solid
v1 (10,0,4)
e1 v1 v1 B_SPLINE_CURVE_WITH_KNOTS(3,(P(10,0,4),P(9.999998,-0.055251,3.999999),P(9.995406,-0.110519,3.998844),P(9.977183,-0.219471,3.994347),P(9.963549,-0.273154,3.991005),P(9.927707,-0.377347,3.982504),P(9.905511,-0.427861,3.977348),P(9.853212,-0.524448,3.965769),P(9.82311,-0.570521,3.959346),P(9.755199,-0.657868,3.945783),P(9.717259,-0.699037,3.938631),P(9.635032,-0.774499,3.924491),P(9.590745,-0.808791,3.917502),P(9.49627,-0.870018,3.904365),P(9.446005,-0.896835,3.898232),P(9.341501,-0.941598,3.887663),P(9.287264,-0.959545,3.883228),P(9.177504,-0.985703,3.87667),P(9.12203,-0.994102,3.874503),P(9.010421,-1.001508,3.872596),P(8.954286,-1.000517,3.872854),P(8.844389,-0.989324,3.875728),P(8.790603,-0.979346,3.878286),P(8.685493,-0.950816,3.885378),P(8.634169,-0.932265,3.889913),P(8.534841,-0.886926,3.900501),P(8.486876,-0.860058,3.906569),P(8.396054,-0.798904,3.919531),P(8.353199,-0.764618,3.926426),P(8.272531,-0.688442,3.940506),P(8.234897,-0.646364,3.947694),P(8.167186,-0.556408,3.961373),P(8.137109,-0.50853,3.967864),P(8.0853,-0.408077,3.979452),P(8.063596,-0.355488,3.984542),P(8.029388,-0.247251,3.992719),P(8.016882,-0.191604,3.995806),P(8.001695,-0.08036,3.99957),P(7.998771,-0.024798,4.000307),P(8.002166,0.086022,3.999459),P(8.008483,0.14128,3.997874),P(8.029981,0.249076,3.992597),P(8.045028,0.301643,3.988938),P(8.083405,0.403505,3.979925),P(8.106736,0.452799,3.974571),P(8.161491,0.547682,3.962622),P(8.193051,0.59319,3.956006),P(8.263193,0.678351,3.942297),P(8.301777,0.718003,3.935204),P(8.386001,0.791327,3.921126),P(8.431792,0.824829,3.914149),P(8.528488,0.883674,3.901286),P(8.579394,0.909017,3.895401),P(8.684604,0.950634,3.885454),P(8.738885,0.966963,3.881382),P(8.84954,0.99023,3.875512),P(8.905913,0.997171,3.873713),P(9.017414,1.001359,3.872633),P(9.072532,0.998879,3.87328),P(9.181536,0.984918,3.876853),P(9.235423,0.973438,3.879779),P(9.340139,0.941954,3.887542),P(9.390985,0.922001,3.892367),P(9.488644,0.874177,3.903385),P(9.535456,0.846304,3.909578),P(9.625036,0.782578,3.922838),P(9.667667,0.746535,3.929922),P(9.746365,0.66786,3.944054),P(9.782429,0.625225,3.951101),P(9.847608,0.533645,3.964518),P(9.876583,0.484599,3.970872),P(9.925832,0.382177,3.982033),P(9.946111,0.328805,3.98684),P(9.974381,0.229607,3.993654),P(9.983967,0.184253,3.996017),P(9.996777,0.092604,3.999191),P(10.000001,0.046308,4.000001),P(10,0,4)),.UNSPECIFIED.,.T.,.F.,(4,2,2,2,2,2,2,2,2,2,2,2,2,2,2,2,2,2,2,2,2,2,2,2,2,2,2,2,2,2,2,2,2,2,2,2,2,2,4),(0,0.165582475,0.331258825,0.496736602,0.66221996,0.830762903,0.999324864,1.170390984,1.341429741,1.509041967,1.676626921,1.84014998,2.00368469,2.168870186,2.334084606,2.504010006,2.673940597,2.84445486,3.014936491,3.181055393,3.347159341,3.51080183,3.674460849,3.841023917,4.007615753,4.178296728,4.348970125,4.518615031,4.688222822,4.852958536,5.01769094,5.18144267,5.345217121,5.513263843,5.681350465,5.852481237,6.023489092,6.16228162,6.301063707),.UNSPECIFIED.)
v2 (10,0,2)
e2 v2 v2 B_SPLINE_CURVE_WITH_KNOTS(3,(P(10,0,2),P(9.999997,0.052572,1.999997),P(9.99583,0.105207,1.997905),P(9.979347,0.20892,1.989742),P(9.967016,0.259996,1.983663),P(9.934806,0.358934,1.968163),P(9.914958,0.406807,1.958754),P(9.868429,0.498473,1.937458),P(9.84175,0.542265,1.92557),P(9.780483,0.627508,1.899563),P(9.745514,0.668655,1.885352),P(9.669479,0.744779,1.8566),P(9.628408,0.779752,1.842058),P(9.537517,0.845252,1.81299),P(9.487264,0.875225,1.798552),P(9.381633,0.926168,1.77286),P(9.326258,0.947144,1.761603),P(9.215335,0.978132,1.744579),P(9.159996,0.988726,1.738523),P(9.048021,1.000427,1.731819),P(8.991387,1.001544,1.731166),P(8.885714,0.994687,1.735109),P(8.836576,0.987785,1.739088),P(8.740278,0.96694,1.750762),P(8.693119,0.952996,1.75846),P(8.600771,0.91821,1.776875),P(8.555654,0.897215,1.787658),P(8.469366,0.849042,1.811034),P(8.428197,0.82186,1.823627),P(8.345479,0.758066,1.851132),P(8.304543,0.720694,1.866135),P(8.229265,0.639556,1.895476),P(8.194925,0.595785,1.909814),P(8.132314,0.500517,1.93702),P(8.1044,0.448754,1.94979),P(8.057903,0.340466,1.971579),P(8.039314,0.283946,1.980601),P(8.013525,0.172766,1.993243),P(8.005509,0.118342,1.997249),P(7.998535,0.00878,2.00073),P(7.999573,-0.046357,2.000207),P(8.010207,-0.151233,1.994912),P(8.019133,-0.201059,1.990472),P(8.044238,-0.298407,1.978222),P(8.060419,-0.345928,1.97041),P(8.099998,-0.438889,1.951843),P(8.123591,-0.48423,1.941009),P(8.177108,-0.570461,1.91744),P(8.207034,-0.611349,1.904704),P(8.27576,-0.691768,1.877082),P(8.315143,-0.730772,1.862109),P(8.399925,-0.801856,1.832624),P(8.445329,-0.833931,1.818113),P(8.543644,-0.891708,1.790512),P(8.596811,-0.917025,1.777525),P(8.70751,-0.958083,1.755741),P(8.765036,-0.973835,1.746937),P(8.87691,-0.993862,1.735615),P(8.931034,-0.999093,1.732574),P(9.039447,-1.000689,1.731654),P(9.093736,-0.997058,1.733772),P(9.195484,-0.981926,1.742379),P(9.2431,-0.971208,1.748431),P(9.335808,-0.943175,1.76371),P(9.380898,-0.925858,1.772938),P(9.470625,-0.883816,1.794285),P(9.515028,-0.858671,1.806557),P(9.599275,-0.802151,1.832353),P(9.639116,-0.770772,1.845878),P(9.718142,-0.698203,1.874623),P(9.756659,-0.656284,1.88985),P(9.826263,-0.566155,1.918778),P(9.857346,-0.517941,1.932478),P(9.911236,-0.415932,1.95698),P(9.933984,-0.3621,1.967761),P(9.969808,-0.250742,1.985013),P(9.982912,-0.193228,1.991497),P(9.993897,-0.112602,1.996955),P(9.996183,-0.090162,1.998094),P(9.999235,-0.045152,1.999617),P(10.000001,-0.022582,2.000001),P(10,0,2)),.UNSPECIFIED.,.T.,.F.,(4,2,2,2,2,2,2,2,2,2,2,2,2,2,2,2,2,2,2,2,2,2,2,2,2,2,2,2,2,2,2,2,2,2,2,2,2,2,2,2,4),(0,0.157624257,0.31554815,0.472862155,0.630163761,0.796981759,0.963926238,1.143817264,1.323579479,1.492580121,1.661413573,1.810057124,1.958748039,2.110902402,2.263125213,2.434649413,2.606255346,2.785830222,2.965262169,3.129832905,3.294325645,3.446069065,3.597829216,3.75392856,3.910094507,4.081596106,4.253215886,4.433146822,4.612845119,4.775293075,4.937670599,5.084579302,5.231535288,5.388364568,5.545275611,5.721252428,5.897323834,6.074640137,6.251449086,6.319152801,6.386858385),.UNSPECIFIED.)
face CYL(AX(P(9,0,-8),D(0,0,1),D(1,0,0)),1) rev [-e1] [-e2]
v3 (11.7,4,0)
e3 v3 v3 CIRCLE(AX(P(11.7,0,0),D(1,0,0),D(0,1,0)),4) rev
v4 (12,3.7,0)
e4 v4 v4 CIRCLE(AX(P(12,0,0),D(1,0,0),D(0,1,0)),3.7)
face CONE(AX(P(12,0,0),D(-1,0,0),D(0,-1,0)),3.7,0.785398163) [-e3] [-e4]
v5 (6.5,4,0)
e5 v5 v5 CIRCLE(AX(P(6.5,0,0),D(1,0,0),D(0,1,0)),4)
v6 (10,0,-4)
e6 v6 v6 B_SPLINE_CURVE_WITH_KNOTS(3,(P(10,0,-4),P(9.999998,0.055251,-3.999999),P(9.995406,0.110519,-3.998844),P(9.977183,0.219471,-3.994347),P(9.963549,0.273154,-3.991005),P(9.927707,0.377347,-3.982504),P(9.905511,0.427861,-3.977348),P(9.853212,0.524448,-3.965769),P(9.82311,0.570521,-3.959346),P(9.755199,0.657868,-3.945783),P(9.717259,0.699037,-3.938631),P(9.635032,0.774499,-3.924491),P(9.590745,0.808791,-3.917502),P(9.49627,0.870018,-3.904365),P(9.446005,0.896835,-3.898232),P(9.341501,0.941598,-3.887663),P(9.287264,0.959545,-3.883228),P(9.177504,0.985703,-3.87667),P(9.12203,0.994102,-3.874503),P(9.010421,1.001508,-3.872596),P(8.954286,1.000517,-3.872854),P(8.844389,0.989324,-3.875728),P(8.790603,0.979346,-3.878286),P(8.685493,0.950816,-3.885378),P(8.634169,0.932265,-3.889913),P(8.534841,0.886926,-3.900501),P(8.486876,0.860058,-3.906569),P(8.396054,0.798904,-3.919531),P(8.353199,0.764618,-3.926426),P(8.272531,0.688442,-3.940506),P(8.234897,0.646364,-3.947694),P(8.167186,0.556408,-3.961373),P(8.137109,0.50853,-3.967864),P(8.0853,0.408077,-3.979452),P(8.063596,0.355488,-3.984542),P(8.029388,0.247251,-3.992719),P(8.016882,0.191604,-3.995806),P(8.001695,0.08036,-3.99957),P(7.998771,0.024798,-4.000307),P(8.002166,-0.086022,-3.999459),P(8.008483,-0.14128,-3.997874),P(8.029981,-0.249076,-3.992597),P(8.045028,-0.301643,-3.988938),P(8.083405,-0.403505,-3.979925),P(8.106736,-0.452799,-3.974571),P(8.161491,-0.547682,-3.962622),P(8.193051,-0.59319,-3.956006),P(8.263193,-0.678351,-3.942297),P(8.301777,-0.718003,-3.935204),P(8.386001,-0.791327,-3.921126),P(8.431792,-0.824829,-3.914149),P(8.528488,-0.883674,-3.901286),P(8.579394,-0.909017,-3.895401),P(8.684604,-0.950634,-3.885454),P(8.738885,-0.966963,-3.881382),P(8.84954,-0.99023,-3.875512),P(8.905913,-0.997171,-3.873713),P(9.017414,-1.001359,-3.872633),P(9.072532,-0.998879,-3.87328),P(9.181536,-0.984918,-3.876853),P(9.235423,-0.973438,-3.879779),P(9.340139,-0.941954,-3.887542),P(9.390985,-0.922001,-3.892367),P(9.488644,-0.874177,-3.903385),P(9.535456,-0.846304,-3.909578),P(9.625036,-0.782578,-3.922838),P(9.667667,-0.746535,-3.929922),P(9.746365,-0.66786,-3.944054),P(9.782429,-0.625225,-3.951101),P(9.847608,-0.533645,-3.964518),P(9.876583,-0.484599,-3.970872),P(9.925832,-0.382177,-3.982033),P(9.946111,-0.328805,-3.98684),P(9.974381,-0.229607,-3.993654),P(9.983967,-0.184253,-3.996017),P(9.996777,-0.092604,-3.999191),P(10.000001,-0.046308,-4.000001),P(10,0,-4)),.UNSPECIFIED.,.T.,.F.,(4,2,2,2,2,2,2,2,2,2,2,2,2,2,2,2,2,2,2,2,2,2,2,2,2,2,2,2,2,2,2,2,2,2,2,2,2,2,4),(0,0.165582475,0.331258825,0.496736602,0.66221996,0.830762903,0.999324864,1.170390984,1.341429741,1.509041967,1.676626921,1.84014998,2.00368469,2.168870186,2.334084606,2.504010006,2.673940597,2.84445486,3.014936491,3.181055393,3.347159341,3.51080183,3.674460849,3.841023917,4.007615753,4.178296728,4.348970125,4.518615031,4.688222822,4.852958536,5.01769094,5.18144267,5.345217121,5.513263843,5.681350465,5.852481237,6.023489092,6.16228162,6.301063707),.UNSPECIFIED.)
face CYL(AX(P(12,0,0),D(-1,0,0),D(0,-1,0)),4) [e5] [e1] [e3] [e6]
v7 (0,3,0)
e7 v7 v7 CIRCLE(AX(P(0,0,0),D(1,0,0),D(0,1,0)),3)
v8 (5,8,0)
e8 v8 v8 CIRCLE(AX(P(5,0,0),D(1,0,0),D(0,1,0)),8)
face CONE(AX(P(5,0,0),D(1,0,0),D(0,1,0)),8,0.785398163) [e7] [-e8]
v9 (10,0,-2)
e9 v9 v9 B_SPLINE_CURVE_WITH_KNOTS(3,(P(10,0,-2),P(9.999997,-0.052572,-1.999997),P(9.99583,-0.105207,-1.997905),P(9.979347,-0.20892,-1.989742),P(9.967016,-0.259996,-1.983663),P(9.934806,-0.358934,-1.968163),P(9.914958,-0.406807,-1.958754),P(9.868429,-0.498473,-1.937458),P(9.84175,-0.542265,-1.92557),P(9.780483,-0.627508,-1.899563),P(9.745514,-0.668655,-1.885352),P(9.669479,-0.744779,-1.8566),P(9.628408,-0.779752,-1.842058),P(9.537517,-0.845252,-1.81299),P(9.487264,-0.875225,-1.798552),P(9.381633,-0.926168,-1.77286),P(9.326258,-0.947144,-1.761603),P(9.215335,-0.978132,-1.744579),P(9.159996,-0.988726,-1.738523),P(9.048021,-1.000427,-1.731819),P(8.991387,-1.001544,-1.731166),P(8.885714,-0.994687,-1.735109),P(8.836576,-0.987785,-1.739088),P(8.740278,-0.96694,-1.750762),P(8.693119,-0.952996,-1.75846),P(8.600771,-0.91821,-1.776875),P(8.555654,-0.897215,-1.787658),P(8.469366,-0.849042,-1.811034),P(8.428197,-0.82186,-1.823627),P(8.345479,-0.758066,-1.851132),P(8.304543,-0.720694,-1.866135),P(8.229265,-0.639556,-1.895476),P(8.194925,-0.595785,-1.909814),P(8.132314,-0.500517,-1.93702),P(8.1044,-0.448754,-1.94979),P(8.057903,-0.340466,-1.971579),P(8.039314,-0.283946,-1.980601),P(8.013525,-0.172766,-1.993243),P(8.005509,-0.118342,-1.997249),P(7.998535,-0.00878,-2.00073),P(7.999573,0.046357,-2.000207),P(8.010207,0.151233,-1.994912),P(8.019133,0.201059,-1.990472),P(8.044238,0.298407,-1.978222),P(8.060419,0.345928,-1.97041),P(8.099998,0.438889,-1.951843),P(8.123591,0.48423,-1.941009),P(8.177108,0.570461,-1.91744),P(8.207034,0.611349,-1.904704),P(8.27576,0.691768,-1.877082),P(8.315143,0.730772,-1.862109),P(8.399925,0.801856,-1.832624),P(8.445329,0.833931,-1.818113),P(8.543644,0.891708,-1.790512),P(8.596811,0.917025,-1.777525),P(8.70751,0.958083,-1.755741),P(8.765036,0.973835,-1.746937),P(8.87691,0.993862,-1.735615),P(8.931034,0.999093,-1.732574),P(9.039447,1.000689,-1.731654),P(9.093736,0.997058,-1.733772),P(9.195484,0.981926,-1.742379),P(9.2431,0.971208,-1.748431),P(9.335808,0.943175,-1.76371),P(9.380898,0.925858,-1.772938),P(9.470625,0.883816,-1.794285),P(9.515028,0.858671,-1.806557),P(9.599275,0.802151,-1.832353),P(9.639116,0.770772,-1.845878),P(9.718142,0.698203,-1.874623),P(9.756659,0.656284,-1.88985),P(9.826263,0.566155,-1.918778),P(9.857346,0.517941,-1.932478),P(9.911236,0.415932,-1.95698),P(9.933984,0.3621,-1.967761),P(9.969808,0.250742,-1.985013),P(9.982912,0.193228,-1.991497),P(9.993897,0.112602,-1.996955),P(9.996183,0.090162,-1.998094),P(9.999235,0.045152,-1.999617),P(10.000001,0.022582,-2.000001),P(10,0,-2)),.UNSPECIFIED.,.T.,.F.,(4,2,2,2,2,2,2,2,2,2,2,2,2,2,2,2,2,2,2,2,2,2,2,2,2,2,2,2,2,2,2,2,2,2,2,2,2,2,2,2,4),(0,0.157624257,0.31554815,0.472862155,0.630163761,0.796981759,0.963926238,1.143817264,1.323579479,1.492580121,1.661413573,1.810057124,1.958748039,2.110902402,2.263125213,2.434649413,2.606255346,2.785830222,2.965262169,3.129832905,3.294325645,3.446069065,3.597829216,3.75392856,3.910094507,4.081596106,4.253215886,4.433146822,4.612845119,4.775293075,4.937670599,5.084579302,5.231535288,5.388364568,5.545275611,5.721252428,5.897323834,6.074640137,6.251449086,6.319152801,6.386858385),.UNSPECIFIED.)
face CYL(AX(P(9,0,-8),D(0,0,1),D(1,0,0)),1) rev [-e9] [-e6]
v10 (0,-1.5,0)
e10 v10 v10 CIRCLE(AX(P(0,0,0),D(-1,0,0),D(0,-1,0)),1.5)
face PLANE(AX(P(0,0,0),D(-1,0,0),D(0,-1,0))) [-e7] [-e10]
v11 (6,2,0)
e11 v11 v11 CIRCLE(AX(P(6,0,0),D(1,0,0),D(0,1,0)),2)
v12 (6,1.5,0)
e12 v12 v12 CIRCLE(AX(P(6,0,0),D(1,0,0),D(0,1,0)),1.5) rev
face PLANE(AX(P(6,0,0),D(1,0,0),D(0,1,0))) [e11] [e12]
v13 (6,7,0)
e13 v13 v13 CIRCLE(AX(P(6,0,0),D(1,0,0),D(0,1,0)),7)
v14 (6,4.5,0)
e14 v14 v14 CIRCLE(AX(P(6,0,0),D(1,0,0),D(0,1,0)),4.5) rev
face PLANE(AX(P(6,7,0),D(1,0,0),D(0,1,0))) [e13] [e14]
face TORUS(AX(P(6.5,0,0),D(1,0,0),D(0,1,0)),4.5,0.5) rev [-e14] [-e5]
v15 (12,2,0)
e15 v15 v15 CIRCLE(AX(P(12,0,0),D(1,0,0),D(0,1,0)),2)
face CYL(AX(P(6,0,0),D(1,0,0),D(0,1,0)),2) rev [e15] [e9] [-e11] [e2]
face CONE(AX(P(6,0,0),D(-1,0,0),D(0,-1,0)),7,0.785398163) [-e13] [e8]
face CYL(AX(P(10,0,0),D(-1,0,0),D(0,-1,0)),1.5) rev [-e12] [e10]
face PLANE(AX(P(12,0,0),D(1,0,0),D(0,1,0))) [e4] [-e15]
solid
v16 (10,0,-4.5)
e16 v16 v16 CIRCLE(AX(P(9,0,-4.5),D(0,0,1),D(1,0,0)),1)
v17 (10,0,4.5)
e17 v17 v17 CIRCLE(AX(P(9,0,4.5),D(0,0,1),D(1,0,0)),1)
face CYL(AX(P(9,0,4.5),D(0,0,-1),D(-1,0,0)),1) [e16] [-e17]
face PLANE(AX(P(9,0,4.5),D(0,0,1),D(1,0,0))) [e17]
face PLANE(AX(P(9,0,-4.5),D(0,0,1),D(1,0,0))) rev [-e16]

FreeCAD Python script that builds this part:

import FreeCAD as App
import Part
import Sketcher
from FreeCAD import Vector
Q = App.Units.Quantity


def edges_at(feature, points):
    """Names of the edges that pass closest to the given points."""
    edges = feature.Shape.Edges
    near = lambda p: min(range(len(edges)), key=lambda i: edges[i].distToShape(Part.Vertex(*p))[0])
    return sorted({f"Edge{near(p) + 1}" for p in points})


def add_polygon(sketch, points):
    """Adds a closed chain of lines whose ends are joined by coincident constraints."""
    first, n = sketch.GeometryCount, len(points)
    for a, b in zip(points, points[1:] + points[:1]):
        sketch.addGeometry(Part.LineSegment(App.Vector(*a, 0), App.Vector(*b, 0)), False)
    for i in range(n):
        sketch.addConstraint(Sketcher.Constraint("Coincident", first + i, 2, first + (i + 1) % n, 1))

doc = App.newDocument("Part")
body = doc.addObject("PartDesign::Body", "Body")

# Sketch on XY plane
sketch1 = body.newObject("Sketcher::SketchObject", "Sketch")
sketch1.AttachmentSupport = (doc.getObject("XY_Plane"), [""])
sketch1.MapMode = "FlatFace"
add_polygon(sketch1, [(0, 3), (0, 0), (6, 0), (6, 7), (5, 8)])  # lines 0-4
sketch1.addConstraint([
    Sketcher.Constraint("Vertical", 0),
    Sketcher.Constraint("Horizontal", 1),
    Sketcher.Constraint("Vertical", 2),
    Sketcher.Constraint("Coincident", 0, 2, -1, 1),
    Sketcher.Constraint("Perpendicular", 3, 4),
    Sketcher.Constraint("DistanceX", 1, 1, 1, 2, Q("6 mm")),
    Sketcher.Constraint("DistanceY", 0, 2, 0, 1, Q("3 mm")),
    Sketcher.Constraint("DistanceY", 2, 1, 2, 2, Q("7 mm")),
    Sketcher.Constraint("Angle", 3, Q("135 deg")),
])
revolution = body.newObject("PartDesign::Revolution", "Revolution")
revolution.Profile = sketch1
revolution.ReferenceAxis = (sketch1, ["H_Axis"])
revolution.Angle = 360

# Sketch on YZ plane
sketch2 = body.newObject("Sketcher::SketchObject", "Sketch001")
sketch2.AttachmentSupport = (doc.getObject("YZ_Plane"), [""])
sketch2.MapMode = "FlatFace"
sketch2.addGeometry(Part.Circle(Vector(0, 0, 0), Vector(0, 0, 1), 1.5), False)
sketch2.addConstraint([
    Sketcher.Constraint("Coincident", 0, 3, -1, 1),
    Sketcher.Constraint("Diameter", 0, Q("3 mm")),
])
pocket1 = body.newObject("PartDesign::Pocket", "Pocket")
pocket1.Profile = sketch2
pocket1.Length = 10
pocket1.Reversed = True

# Sketch on YZ plane
sketch3 = body.newObject("Sketcher::SketchObject", "Sketch002")
sketch3.AttachmentSupport = (doc.getObject("YZ_Plane"), [""])
sketch3.MapMode = "FlatFace"
sketch3.AttachmentOffset = App.Placement(Vector(0, 0, 6), App.Rotation())
sketch3.addGeometry(Part.Circle(Vector(0, 0, 0), Vector(0, 0, 1), 4), False)
sketch3.addConstraint([
    Sketcher.Constraint("Coincident", 0, 3, -1, 1),
    Sketcher.Constraint("Diameter", 0, Q("8 mm")),
])
pad1 = body.newObject("PartDesign::Pad", "Pad")
pad1.Profile = sketch3
pad1.Length = 6

# Sketch on YZ plane
sketch4 = body.newObject("Sketcher::SketchObject", "Sketch003")
sketch4.AttachmentSupport = (doc.getObject("YZ_Plane"), [""])
sketch4.MapMode = "FlatFace"
sketch4.AttachmentOffset = App.Placement(Vector(0, 0, 12), App.Rotation())
sketch4.addGeometry(Part.Circle(Vector(0, 0, 0), Vector(0, 0, 1), 2), False)
sketch4.addConstraint([
    Sketcher.Constraint("Coincident", 0, 3, -1, 1),
    Sketcher.Constraint("Diameter", 0, Q("4 mm")),
])
pocket2 = body.newObject("PartDesign::Pocket", "Pocket001")
pocket2.Profile = sketch4
pocket2.Length = 6

# Sketch on XY plane
sketch5 = body.newObject("Sketcher::SketchObject", "Sketch004")
sketch5.AttachmentSupport = (doc.getObject("XY_Plane"), [""])
sketch5.MapMode = "FlatFace"
sketch5.addGeometry(Part.Circle(Vector(9, 0, 0), Vector(0, 0, 1), 1), False)
sketch5.addConstraint([
    Sketcher.Constraint("PointOnObject", 0, 3, -1),
    Sketcher.Constraint("Diameter", 0, Q("2 mm")),
    Sketcher.Constraint("DistanceX", -1, 1, 0, 3, Q("9 mm")),
])
pocket3 = body.newObject("PartDesign::Pocket", "Pocket002")
pocket3.Profile = sketch5
pocket3.Type = "ThroughAll"
pocket3.Midplane = True
doc.recompute()

fillet = body.newObject("PartDesign::Fillet", "Fillet")
fillet.Base = (pocket3, edges_at(pocket3, [(6, -4, 0)]))
fillet.Radius = 0.5
doc.recompute()

chamfer = body.newObject("PartDesign::Chamfer", "Chamfer")
chamfer.Base = (fillet, edges_at(fillet, [(12, -4, 0)]))
chamfer.Size = 0.3
body2 = doc.addObject("PartDesign::Body", "Body001")

# Sketch on XY plane
sketch6 = body2.newObject("Sketcher::SketchObject", "Sketch005")
sketch6.AttachmentSupport = (doc.getObject("XY_Plane001"), [""])
sketch6.MapMode = "FlatFace"
sketch6.addGeometry(Part.Circle(Vector(9, 0, 0), Vector(0, 0, 1), 1), False)
sketch6.addConstraint([
    Sketcher.Constraint("PointOnObject", 0, 3, -1),
    Sketcher.Constraint("Diameter", 0, Q("2 mm")),
    Sketcher.Constraint("DistanceX", -1, 1, 0, 3, Q("9 mm")),
])
pad2 = body2.newObject("PartDesign::Pad", "Pad001")
pad2.Profile = sketch6
pad2.Length = 9
pad2.Midplane = True

doc.recompute()
